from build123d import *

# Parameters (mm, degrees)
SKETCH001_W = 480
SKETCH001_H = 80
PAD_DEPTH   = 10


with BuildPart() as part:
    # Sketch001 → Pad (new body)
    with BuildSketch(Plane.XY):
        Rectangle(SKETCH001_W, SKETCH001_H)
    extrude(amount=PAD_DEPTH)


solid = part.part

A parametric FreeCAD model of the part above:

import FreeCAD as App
import Part
import Sketcher

V = App.Vector
Q = App.Units.Quantity

doc = App.newDocument("Part")
body = doc.addObject("PartDesign::Body", "Body")

# Sketch on XY plane
sketch1 = body.newObject("Sketcher::SketchObject", "Sketch")
sketch1.AttachmentSupport = (doc.getObject("XY_Plane"), [""])
sketch1.MapMode = "FlatFace"
sketch1.addGeometry(Part.LineSegment(V(-240, 40, 0), V(-240, -40, 0)), False)
sketch1.addGeometry(Part.LineSegment(V(-240, -40, 0), V(240, -40, 0)), False)
sketch1.addGeometry(Part.LineSegment(V(240, -40, 0), V(240, 40, 0)), False)
sketch1.addGeometry(Part.LineSegment(V(240, 40, 0), V(-240, 40, 0)), False)
sketch1.addConstraint(Sketcher.Constraint("Coincident", 0, 2, 1, 1))
sketch1.addConstraint(Sketcher.Constraint("Coincident", 1, 2, 2, 1))
sketch1.addConstraint(Sketcher.Constraint("Coincident", 2, 2, 3, 1))
sketch1.addConstraint(Sketcher.Constraint("Coincident", 3, 2, 0, 1))
sketch1.addConstraint(Sketcher.Constraint("Vertical", 0))
sketch1.addConstraint(Sketcher.Constraint("Horizontal", 1))
sketch1.addConstraint(Sketcher.Constraint("Vertical", 2))
sketch1.addConstraint(Sketcher.Constraint("Horizontal", 3))
sketch1.addConstraint(Sketcher.Constraint("Symmetric", 0, 2, 2, 2, -1, 1))
sketch1.addConstraint(Sketcher.Constraint("DistanceX", 1, 1, 1, 2, Q("480 mm")))
sketch1.addConstraint(Sketcher.Constraint("DistanceY", 0, 2, 0, 1, Q("80 mm")))
pad1 = body.newObject("PartDesign::Pad", "Pad")
pad1.Profile = sketch1
pad1.Length = 10

doc.recompute()
